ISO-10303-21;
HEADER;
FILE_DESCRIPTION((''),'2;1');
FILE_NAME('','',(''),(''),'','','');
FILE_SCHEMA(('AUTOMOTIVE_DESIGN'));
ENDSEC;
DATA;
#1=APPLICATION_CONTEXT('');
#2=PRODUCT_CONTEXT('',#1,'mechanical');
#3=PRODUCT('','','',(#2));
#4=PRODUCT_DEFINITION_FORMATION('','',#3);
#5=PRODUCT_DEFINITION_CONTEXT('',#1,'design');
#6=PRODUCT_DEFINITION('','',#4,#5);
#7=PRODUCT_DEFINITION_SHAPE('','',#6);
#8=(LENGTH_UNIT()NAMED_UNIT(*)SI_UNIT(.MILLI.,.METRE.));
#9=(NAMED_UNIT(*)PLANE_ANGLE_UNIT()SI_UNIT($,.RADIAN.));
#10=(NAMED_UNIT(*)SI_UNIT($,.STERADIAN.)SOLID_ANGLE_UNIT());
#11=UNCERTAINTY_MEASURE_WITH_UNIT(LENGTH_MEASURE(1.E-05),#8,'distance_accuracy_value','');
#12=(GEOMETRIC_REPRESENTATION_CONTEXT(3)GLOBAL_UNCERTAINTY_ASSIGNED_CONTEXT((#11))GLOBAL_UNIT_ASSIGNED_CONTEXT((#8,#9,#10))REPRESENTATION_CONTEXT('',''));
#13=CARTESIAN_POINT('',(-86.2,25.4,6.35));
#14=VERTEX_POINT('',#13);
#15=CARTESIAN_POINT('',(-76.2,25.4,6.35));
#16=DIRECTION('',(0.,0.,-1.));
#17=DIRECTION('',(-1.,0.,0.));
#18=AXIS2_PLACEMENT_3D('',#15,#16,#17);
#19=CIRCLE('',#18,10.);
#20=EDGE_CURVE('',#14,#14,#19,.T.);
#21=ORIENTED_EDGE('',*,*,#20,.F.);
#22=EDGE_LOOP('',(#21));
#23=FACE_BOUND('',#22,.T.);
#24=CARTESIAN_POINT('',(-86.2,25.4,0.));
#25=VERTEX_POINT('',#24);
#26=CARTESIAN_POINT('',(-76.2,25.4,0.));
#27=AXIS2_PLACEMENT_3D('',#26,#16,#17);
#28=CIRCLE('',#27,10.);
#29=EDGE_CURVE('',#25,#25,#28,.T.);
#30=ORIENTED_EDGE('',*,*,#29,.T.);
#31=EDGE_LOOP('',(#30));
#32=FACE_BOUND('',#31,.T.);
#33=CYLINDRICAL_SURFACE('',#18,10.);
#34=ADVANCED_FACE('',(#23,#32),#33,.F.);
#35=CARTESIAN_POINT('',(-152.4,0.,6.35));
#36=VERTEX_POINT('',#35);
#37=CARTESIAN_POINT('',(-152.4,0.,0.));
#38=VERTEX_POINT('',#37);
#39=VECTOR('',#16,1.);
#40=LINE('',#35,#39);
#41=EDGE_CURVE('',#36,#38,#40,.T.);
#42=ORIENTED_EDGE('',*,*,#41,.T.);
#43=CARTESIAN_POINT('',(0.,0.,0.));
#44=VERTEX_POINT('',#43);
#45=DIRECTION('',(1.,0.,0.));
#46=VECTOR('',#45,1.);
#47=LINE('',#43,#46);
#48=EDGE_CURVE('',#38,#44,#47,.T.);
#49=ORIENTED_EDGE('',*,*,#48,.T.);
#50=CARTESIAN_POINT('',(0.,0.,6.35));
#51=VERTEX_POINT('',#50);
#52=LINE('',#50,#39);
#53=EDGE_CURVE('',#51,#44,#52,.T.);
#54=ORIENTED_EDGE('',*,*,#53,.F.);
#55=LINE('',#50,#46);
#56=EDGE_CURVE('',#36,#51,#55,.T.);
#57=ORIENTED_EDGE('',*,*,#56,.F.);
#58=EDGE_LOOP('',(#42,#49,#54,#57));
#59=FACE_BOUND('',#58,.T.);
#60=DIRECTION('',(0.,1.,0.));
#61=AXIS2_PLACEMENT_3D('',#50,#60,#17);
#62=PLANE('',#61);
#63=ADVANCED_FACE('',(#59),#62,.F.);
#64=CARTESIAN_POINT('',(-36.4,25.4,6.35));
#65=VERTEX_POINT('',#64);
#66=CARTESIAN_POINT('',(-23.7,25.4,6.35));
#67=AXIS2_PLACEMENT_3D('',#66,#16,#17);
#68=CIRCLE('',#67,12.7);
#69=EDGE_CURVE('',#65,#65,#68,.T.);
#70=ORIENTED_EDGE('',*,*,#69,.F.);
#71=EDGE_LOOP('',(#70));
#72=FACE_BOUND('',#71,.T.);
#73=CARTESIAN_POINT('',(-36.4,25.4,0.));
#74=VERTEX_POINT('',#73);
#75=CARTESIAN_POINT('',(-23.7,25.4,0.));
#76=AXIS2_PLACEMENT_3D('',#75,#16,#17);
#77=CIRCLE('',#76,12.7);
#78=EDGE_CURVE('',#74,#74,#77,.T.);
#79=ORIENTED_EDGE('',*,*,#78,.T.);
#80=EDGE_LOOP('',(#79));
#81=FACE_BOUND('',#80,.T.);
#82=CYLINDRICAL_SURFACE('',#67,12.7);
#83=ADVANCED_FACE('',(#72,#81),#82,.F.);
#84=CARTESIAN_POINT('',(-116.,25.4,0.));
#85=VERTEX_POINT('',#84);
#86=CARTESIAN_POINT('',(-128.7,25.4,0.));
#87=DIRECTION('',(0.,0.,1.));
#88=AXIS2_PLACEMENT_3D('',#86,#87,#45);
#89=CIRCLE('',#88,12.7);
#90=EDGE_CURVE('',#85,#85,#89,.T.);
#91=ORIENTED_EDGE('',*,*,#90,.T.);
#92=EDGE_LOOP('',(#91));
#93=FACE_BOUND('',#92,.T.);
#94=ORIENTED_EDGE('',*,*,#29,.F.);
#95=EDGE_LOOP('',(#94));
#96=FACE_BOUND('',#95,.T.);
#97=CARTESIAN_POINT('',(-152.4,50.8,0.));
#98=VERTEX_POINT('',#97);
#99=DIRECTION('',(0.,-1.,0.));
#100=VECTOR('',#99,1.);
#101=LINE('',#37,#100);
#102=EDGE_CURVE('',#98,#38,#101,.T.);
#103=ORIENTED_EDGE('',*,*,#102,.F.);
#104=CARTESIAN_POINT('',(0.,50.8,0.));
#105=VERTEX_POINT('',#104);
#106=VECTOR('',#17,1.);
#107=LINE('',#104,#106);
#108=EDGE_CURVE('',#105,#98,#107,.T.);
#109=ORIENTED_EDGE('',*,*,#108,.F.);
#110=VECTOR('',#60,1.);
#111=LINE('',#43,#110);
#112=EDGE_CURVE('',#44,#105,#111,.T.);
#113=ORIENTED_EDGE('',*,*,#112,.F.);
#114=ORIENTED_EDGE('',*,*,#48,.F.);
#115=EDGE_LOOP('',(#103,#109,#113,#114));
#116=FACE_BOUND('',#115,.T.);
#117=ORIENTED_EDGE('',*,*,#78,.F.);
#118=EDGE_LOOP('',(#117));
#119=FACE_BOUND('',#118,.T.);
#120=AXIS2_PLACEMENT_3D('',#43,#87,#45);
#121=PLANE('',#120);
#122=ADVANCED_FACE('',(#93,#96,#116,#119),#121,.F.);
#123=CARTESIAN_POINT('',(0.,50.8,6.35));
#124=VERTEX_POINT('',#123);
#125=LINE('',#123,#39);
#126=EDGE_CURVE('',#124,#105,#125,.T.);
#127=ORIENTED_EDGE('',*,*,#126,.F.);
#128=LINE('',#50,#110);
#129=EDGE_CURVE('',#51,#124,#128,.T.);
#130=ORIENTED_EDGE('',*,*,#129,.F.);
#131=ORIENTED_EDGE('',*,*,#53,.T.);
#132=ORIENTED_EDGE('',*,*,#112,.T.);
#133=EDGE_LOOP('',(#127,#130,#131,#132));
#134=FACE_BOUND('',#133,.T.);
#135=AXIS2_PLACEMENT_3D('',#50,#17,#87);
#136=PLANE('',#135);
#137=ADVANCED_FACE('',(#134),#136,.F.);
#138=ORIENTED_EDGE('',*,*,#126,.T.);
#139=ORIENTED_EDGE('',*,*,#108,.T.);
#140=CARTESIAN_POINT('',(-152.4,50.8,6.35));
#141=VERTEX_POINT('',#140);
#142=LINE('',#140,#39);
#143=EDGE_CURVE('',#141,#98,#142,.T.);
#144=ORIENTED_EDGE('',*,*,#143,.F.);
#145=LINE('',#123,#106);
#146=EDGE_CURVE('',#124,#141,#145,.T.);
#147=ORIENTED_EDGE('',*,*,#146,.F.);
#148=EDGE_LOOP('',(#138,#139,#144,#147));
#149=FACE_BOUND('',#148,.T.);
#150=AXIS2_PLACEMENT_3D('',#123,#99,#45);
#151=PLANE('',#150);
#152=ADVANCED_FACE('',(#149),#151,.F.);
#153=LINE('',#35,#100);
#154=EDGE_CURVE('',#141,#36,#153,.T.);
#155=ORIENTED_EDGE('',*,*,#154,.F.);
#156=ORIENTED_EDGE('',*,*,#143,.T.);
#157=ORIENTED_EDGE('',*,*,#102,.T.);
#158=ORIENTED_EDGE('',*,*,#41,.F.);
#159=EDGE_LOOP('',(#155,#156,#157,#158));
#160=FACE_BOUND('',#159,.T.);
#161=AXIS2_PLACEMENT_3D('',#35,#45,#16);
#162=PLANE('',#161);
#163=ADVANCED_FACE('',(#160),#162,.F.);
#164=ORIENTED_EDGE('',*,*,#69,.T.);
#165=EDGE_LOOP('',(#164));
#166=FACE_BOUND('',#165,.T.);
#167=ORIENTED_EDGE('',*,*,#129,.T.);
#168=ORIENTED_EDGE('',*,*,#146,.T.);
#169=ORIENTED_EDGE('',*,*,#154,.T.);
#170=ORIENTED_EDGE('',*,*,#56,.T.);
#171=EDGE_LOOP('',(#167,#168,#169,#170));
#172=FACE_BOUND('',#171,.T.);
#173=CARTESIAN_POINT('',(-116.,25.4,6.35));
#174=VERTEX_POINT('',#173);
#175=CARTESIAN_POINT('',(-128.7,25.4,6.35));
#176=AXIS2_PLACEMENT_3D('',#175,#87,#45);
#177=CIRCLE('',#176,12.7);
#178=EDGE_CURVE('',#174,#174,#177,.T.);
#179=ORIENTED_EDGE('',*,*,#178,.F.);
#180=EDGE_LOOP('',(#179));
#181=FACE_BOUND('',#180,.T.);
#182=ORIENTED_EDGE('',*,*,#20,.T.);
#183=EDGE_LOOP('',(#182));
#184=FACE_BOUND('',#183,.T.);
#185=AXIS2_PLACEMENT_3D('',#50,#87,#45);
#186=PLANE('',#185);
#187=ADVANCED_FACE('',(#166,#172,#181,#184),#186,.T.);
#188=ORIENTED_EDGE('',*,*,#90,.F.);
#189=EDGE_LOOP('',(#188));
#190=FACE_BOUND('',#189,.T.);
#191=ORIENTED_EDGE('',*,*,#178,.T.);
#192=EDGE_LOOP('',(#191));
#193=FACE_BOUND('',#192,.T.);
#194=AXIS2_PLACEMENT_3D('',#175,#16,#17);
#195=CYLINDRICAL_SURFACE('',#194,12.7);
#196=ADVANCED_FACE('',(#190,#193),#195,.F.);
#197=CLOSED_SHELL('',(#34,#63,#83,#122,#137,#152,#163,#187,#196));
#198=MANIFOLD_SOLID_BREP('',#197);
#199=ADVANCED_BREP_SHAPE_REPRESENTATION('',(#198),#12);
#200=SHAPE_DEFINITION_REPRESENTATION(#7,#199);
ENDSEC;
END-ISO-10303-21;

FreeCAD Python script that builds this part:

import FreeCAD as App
import Part
import Sketcher

V = App.Vector
Q = App.Units.Quantity


def add_polygon(sketch, points):
    """Adds a closed chain of lines whose ends are joined by coincident constraints."""
    first, n = sketch.GeometryCount, len(points)
    for a, b in zip(points, points[1:] + points[:1]):
        sketch.addGeometry(Part.LineSegment(App.Vector(*a, 0), App.Vector(*b, 0)), False)
    for i in range(n):
        sketch.addConstraint(Sketcher.Constraint("Coincident", first + i, 2, first + (i + 1) % n, 1))

doc = App.newDocument("Part")
body = doc.addObject("PartDesign::Body", "Body")

sketch1 = body.newObject("Sketcher::SketchObject", "Sketch")
sketch1.AttachmentSupport = (doc.getObject("XY_Plane"), [""])
sketch1.MapMode = "FlatFace"
add_polygon(sketch1, [(-152, 51), (-152, 0), (0, 0), (0, 51)])
sketch1.addConstraint(Sketcher.Constraint("Vertical", 0))
sketch1.addConstraint(Sketcher.Constraint("Horizontal", 1))
sketch1.addConstraint(Sketcher.Constraint("Vertical", 2))
sketch1.addConstraint(Sketcher.Constraint("Horizontal", 3))
sketch1.addConstraint(Sketcher.Constraint("Coincident", 1, 2, -1, 1))
sketch1.addConstraint(Sketcher.Constraint("DistanceX", 1, 1, 1, 2, Q("6 in")))
sketch1.addConstraint(Sketcher.Constraint("DistanceY", 0, 2, 0, 1, Q("2 in")))
pad1 = body.newObject("PartDesign::Pad", "Pad")
pad1.Profile = sketch1
pad1.Length = Q("0.25 in")

sketch2 = body.newObject("Sketcher::SketchObject", "Sketch001")
sketch2.AttachmentSupport = (doc.getObject("XY_Plane"), [""])
sketch2.MapMode = "FlatFace"
sketch2.addGeometry(Part.Circle(V(-24, 25, 0), V(0, 0, 1), 13), False)
sketch2.addGeometry(Part.Circle(V(-76, 25, 0), V(0, 0, 1), 10), False)
sketch2.addGeometry(Part.Circle(V(-129, 25, 0), V(0, 0, 1), 13), False)
sketch2.addConstraint(Sketcher.Constraint("Equal", 0, 2))
sketch2.addConstraint(Sketcher.Constraint("Horizontal", 0, 3, 1, 3))
sketch2.addConstraint(Sketcher.Constraint("Horizontal", 1, 3, 2, 3))
sketch2.addConstraint(Sketcher.Constraint("Diameter", 0, Q("1 in")))
sketch2.addConstraint(Sketcher.Constraint("DistanceY", -1, 1, 0, 3, Q("1 in")))
sketch2.addConstraint(Sketcher.Constraint("DistanceX", 1, 3, -1, 1, Q("3 in")))
sketch2.addConstraint(Sketcher.Constraint("Diameter", 1, 20.0))
sketch2.addConstraint(Sketcher.Constraint("DistanceX", 0, 3, -1, 1, 23.7))
sketch2.addConstraint(Sketcher.Constraint("DistanceX", 2, 3, -1, 1, 128.7))
pocket1 = body.newObject("PartDesign::Pocket", "Pocket")
pocket1.Profile = sketch2
pocket1.Length = Q("0.25 in")
pocket1.Reversed = True

doc.recompute()
